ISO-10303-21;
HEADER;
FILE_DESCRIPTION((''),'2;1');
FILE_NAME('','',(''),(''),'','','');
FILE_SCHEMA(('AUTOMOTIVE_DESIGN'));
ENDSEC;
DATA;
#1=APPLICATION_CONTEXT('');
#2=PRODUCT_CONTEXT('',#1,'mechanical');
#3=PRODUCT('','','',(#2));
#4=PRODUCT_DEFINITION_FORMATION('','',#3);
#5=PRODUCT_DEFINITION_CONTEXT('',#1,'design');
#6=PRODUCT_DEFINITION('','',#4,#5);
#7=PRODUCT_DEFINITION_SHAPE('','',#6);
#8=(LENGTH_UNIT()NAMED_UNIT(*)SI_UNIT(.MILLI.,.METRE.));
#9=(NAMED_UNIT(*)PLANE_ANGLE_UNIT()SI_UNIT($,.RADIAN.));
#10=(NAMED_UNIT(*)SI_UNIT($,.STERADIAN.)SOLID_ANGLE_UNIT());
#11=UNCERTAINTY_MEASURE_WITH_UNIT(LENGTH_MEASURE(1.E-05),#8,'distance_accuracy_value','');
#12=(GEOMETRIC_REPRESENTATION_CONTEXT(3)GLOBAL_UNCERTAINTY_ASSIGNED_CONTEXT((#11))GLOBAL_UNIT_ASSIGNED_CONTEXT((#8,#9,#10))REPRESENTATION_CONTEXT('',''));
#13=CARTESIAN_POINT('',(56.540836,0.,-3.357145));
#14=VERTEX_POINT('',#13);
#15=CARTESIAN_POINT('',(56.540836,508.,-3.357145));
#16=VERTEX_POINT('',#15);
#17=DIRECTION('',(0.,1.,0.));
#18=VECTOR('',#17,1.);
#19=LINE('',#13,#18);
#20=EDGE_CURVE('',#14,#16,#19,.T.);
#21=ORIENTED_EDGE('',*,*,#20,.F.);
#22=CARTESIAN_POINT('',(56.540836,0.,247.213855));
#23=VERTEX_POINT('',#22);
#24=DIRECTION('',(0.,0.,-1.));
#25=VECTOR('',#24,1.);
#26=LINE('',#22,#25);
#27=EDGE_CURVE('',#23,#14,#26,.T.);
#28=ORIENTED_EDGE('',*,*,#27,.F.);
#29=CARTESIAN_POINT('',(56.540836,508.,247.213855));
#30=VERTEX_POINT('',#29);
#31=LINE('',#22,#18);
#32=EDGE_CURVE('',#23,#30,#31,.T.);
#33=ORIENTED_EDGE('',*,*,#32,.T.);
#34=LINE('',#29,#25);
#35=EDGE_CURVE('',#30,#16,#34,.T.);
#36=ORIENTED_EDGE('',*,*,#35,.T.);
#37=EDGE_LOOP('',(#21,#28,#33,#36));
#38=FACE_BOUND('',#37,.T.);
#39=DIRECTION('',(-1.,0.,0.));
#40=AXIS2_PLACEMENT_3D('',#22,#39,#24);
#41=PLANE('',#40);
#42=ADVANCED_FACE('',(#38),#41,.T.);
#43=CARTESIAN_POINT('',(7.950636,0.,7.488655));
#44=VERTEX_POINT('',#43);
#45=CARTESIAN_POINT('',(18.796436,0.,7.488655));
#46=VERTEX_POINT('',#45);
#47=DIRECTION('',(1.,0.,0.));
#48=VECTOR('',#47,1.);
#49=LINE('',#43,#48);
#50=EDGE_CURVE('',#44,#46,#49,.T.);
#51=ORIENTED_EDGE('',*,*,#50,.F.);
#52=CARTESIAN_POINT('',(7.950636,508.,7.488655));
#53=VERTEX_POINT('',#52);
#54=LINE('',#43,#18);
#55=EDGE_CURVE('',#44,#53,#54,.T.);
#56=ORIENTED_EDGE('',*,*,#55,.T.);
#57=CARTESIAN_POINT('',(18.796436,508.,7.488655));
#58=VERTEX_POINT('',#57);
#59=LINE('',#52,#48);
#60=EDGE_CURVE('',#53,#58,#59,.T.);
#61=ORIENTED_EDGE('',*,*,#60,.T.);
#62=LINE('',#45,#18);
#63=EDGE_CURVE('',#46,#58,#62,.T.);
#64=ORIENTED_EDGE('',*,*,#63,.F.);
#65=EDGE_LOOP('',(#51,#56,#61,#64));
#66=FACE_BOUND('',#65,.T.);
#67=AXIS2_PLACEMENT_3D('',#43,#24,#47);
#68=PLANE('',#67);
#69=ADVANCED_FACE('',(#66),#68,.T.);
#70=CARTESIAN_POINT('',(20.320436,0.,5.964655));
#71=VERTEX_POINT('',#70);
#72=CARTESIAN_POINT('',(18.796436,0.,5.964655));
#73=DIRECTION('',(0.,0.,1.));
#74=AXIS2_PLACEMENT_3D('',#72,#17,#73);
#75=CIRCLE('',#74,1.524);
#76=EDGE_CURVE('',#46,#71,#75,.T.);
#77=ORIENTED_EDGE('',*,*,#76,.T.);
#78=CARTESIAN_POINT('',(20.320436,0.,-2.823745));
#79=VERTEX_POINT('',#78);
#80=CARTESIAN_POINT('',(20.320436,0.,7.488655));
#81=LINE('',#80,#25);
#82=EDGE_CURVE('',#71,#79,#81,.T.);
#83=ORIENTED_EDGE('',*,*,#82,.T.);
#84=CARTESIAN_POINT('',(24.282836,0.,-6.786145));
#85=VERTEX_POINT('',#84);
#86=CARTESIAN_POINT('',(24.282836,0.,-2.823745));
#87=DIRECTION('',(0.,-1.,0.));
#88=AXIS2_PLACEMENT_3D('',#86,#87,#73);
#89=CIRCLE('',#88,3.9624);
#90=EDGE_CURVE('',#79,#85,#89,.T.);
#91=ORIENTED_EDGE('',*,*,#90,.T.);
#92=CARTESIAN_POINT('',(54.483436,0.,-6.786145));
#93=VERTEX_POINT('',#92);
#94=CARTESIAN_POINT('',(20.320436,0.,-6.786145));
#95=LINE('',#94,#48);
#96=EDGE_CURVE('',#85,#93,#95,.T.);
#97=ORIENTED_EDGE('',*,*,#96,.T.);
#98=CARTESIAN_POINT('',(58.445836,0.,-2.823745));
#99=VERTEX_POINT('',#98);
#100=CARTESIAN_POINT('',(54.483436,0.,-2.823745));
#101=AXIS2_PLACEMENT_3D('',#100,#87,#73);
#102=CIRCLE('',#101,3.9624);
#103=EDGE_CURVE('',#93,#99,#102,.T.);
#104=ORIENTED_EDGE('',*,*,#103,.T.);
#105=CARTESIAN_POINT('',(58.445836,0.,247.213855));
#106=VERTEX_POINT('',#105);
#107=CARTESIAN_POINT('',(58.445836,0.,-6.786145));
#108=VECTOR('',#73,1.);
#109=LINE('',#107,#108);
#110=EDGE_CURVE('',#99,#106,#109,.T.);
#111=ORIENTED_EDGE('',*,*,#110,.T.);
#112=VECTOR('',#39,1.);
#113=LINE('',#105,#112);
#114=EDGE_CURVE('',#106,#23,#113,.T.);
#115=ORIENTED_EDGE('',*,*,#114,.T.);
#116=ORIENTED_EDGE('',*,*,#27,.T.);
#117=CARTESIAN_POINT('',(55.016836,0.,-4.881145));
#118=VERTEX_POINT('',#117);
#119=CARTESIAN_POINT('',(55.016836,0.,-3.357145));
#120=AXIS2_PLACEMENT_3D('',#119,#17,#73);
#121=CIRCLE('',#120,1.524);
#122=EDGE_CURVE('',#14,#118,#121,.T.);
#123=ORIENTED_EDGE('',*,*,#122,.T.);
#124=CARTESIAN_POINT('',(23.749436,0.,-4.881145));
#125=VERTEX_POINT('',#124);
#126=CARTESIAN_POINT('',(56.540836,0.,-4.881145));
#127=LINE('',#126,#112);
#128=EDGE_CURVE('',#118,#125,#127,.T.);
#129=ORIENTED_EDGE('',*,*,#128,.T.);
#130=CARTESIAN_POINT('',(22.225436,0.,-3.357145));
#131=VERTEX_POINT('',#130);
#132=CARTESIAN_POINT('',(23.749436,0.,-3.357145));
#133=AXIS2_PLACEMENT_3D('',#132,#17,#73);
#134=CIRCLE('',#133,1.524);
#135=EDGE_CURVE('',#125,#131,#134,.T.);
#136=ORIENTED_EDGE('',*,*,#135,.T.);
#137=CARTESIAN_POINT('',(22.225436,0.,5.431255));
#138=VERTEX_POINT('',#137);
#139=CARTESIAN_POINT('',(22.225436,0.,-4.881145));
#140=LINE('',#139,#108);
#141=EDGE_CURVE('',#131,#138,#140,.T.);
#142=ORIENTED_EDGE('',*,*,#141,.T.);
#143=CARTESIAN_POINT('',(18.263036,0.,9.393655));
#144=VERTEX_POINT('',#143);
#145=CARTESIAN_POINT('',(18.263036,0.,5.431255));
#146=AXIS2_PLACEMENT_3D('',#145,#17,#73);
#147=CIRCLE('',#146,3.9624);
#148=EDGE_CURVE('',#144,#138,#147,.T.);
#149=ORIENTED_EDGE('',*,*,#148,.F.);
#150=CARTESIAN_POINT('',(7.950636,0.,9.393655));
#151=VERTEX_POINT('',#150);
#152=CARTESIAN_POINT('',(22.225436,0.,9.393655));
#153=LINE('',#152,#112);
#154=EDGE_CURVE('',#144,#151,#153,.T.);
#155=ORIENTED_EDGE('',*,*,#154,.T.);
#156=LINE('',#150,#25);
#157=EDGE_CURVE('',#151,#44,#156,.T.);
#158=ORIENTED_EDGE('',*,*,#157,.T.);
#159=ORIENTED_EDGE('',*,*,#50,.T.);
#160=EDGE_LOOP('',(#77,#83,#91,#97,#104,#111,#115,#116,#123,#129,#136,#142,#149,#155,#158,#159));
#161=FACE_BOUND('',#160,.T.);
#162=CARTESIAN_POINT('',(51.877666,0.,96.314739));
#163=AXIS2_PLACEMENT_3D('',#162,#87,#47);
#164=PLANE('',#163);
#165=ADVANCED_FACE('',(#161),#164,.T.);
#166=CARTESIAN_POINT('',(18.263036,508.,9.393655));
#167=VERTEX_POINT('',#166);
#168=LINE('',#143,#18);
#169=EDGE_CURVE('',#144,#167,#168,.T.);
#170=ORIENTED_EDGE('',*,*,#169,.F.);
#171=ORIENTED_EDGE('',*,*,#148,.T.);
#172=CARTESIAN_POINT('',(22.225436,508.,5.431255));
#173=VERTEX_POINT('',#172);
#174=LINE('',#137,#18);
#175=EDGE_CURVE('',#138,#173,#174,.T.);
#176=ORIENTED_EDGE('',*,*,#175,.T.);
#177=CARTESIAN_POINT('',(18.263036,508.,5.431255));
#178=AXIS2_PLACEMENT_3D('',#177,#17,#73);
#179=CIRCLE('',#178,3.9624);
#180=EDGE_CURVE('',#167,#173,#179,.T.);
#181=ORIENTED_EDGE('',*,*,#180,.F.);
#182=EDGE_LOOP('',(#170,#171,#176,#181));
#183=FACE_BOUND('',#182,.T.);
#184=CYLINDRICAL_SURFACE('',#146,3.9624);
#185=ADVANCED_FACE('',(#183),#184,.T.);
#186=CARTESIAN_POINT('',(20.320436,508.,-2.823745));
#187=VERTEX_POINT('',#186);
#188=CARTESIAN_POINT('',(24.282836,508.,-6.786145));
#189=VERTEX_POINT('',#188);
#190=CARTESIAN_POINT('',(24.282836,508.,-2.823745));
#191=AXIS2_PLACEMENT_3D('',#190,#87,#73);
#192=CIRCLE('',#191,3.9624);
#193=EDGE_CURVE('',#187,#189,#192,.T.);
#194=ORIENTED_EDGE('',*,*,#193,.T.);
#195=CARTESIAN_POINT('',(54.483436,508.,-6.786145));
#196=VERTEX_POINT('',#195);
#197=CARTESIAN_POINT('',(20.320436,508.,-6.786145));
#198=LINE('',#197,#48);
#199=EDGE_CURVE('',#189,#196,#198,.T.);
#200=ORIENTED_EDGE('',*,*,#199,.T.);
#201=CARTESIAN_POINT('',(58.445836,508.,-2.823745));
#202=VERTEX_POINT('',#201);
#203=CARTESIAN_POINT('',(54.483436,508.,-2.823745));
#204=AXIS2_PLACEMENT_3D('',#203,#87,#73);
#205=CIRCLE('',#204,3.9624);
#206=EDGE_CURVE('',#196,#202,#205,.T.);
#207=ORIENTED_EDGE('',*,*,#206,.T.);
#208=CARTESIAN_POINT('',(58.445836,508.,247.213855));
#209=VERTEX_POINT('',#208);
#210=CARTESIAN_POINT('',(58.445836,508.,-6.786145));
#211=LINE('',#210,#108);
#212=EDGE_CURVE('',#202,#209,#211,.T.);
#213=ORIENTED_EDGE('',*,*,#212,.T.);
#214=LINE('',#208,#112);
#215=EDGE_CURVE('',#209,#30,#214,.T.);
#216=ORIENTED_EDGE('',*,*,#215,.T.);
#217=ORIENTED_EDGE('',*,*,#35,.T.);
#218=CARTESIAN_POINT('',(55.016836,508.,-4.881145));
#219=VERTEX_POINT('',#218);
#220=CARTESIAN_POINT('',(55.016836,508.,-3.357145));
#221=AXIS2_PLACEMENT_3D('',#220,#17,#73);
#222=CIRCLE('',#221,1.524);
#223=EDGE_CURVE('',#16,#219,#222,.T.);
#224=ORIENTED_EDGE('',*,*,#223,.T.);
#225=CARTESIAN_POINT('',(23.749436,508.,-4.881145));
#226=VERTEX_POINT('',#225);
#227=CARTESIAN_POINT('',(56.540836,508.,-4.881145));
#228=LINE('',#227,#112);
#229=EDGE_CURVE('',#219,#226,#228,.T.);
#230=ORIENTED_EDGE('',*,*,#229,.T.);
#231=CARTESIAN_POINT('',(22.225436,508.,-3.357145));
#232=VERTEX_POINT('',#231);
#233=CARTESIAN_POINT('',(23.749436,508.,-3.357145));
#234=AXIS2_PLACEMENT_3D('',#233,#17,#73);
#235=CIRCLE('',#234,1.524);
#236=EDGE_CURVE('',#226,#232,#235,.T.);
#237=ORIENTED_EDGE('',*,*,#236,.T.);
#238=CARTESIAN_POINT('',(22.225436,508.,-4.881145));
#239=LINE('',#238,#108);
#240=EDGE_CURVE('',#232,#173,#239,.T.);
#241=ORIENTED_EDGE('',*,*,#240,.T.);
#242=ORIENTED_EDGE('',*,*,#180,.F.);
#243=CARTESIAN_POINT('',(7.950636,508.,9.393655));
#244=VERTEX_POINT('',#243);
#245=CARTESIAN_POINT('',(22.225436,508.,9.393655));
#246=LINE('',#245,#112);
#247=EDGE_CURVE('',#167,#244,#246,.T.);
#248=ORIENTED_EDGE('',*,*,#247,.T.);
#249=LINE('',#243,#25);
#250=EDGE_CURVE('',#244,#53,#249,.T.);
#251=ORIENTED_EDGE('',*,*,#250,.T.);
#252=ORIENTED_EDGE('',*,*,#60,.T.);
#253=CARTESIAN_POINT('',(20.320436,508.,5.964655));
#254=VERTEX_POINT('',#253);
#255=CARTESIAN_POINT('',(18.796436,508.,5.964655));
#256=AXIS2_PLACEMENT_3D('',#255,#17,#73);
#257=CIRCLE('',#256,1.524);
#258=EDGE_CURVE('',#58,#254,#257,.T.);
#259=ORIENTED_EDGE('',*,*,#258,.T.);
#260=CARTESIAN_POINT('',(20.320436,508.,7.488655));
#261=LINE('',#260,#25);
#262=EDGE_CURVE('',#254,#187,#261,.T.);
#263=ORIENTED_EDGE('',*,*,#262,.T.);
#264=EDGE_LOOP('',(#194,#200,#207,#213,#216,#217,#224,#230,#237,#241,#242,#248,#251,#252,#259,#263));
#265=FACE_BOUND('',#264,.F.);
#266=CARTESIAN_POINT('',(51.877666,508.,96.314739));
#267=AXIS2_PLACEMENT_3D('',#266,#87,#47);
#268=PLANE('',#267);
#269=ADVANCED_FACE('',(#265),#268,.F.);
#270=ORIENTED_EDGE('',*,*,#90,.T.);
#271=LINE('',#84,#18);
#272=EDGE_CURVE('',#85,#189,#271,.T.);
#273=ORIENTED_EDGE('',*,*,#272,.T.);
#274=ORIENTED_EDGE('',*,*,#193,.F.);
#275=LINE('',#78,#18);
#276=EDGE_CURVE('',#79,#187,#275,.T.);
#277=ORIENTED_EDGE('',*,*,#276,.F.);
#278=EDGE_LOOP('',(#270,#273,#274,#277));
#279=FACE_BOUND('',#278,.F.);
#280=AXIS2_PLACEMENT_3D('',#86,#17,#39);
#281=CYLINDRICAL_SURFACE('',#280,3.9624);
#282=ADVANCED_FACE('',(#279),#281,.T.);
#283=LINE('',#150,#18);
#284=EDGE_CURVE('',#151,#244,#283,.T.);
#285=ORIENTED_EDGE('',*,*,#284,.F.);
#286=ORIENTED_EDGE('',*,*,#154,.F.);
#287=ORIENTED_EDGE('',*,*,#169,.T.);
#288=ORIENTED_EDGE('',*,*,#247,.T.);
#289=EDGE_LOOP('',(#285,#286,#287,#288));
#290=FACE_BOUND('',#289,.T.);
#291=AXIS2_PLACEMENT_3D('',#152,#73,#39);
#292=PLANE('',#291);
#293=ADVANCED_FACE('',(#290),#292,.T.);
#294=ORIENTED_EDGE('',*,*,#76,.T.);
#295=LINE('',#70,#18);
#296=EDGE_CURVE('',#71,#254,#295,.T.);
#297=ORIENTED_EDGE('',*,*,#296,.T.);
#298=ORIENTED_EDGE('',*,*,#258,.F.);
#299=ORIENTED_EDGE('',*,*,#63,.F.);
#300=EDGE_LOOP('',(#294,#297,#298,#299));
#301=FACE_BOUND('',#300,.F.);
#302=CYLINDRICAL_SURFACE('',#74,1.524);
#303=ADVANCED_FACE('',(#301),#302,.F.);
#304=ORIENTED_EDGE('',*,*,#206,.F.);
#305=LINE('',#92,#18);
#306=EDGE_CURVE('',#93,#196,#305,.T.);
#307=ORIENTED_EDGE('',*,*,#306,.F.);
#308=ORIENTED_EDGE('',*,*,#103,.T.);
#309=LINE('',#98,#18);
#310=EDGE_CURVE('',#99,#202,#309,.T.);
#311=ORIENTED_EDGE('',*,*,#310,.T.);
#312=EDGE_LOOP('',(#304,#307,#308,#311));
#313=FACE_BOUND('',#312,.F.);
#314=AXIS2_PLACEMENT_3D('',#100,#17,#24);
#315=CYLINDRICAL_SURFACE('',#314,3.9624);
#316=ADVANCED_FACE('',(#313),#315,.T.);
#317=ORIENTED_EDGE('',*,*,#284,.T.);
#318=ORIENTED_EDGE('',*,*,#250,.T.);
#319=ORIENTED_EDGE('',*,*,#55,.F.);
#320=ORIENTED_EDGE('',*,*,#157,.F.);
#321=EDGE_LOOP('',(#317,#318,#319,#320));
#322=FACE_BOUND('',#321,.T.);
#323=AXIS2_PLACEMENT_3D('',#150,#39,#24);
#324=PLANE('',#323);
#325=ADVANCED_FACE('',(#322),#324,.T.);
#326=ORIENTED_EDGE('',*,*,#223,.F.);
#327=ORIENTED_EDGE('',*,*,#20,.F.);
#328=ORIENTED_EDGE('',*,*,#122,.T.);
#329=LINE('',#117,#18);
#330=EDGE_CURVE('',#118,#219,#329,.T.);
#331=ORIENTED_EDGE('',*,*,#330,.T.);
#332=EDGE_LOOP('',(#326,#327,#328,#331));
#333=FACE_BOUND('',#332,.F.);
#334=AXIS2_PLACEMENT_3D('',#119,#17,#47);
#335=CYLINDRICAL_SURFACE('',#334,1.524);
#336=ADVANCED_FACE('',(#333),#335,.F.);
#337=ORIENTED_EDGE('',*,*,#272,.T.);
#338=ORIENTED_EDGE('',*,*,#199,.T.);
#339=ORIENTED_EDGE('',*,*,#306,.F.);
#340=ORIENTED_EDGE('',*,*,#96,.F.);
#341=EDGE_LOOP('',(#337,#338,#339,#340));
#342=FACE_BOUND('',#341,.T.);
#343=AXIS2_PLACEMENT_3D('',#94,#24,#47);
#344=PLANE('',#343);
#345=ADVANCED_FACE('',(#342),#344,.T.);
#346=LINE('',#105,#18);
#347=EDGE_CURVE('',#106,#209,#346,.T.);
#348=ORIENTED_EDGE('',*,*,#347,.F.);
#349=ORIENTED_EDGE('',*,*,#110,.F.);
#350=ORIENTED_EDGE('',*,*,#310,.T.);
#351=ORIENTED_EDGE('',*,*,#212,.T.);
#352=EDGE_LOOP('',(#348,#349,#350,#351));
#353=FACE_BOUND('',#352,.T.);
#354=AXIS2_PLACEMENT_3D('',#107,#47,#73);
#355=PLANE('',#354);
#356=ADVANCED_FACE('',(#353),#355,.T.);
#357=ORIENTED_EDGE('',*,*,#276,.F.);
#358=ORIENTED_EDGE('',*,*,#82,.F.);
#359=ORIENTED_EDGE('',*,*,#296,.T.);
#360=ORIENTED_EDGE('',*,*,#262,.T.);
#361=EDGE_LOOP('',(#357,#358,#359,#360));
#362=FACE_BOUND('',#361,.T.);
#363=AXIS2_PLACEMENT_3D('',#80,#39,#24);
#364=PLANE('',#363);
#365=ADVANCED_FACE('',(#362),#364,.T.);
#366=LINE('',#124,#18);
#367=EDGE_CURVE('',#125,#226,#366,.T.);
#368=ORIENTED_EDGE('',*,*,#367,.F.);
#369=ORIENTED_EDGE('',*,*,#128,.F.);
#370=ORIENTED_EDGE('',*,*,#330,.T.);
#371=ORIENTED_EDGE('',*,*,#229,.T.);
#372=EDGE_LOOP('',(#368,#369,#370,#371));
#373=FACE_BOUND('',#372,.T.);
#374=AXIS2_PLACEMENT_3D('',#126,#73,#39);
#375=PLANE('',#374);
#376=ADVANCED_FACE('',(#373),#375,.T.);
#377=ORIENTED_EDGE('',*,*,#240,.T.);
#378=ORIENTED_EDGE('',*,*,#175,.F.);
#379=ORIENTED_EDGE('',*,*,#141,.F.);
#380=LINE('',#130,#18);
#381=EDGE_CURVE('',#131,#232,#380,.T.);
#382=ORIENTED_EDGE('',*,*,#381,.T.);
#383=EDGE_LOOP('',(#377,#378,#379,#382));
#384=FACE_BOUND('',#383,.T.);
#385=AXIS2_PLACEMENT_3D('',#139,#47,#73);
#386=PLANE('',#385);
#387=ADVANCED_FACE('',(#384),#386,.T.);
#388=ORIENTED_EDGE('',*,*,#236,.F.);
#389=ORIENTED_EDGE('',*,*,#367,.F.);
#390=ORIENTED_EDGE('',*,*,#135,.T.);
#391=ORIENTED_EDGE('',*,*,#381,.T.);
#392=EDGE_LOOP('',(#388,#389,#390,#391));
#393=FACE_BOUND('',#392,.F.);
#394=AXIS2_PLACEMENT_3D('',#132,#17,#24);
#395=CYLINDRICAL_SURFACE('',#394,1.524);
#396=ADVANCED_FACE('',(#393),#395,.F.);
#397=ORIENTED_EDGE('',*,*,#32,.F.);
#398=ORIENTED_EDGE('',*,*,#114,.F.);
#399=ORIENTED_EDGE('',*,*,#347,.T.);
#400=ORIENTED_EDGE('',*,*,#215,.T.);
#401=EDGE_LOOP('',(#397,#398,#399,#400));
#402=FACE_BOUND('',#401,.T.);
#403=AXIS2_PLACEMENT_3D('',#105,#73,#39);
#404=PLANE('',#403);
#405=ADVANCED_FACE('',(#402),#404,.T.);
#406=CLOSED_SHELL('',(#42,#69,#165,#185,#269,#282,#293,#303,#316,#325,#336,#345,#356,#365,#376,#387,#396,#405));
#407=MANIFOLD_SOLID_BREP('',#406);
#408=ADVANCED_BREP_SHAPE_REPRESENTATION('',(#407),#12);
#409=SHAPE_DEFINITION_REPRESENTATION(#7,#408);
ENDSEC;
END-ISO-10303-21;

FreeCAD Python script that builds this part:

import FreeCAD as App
import Part
import Sketcher
Q = App.Units.Quantity


def edges_at(feature, points):
    """Names of the edges that pass closest to the given points."""
    edges = feature.Shape.Edges
    near = lambda p: min(range(len(edges)), key=lambda i: edges[i].distToShape(Part.Vertex(*p))[0])
    return sorted({f"Edge{near(p) + 1}" for p in points})


def add_polygon(sketch, points):
    """Adds a closed chain of lines whose ends are joined by coincident constraints."""
    first, n = sketch.GeometryCount, len(points)
    for a, b in zip(points, points[1:] + points[:1]):
        sketch.addGeometry(Part.LineSegment(App.Vector(*a, 0), App.Vector(*b, 0)), False)
    for i in range(n):
        sketch.addConstraint(Sketcher.Constraint("Coincident", first + i, 2, first + (i + 1) % n, 1))

doc = App.newDocument("Part")
params = doc.addObject("Spreadsheet::Sheet", "Params")
for row, (alias, value) in enumerate([
    ("sketch1_height", "10 in"),
    ("sketch1_width", "0.487 in"),
    ("sketch1_width2", "1.501 in"),
    ("sketch1_width3", "0.075 in"),
    ("sketch1_width4", "1.351 in"),
    ("pad1_length", "20 in"),
    ("fillet_radius", "0.06 in"),
    ("fillet2_radius", "0.156 in"),
], start=1):
    params.set(f"A{row}", alias)
    params.set(f"B{row}", "=" + value)
    params.setAlias(f"B{row}", alias)

body = doc.addObject("PartDesign::Body", "Body")

sketch1 = body.newObject("Sketcher::SketchObject", "Sketch")
sketch1.AttachmentSupport = (doc.getObject("XZ_Plane"), [""])
sketch1.MapMode = "FlatFace"
add_polygon(sketch1, [(8, 9.4), (8, 7.5), (20.3, 7.5), (20.3, -6.8), (58.4, -6.8), (58.4, 247.2), (56.5, 247.2), (56.5, -4.9), (22.2, -4.9), (22.2, 9.4)])
sketch1.addConstraint([
    Sketcher.Constraint("Vertical", 0),
    Sketcher.Constraint("Horizontal", 1),
    Sketcher.Constraint("Vertical", 2),
    Sketcher.Constraint("Horizontal", 3),
    Sketcher.Constraint("Vertical", 4),
    Sketcher.Constraint("Horizontal", 5),
    Sketcher.Constraint("Vertical", 6),
    Sketcher.Constraint("Horizontal", 7),
    Sketcher.Constraint("Vertical", 8),
    Sketcher.Constraint("Horizontal", 9),
    Sketcher.Constraint("Equal", 5, 0),
    Sketcher.Constraint("Equal", 9, 2),
    Sketcher.Constraint("Equal", 2, 8),
    Sketcher.Constraint("DistanceY", 4, 1, 4, 2, Q("10 in")),
    Sketcher.Constraint("DistanceX", 1, 1, 1, 2, Q("0.487 in")),
    Sketcher.Constraint("DistanceX", 3, 1, 3, 2, Q("1.501 in")),
    Sketcher.Constraint("DistanceX", 5, 2, 5, 1, Q("0.075 in")),
    Sketcher.Constraint("DistanceX", 7, 2, 7, 1, Q("1.351 in")),
    Sketcher.Constraint("DistanceX", -1, 1, 0, 2, 7.950636),
    Sketcher.Constraint("DistanceY", -1, 1, 0, 2, 7.488655),
])
sketch1.setExpression("Constraints[23]", "Params.sketch1_height")
sketch1.setExpression("Constraints[24]", "Params.sketch1_width")
sketch1.setExpression("Constraints[25]", "Params.sketch1_width2")
sketch1.setExpression("Constraints[26]", "Params.sketch1_width3")
sketch1.setExpression("Constraints[27]", "Params.sketch1_width4")
pad1 = body.newObject("PartDesign::Pad", "Pad")
pad1.Profile = sketch1
pad1.setExpression("Length", "Params.pad1_length")
pad1.Reversed = True
doc.recompute()

fillet = body.newObject("PartDesign::Fillet", "Fillet")
fillet.Base = (pad1, edges_at(pad1, [(20.32, 254, 7.489), (22.225, 254, -4.881), (56.541, 254, -4.881)]))
fillet.setExpression("Radius", "Params.fillet_radius")
doc.recompute()

fillet2 = body.newObject("PartDesign::Fillet", "Fillet001")
fillet2.Base = (fillet, edges_at(fillet, [(22.225, 254, 9.394), (20.32, 254, -6.786), (58.446, 254, -6.786)]))
fillet2.setExpression("Radius", "Params.fillet2_radius")

doc.recompute()
